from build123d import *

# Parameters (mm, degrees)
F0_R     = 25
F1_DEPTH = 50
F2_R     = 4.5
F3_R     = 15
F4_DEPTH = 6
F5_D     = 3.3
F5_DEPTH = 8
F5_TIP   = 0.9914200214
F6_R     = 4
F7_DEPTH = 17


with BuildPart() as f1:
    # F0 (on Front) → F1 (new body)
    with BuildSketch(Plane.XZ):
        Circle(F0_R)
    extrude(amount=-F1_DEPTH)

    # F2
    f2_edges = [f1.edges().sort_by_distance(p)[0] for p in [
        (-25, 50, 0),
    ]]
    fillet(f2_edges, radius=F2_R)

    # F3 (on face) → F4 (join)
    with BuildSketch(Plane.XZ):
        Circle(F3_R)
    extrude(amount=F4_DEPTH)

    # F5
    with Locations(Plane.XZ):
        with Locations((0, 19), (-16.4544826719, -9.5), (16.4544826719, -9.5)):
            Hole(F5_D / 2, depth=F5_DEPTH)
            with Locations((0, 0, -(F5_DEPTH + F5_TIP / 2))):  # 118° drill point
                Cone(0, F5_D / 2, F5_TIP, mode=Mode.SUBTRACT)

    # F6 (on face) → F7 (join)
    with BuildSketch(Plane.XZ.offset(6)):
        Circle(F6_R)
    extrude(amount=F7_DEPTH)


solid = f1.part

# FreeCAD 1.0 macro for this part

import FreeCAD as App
import Part
import Sketcher


def edges_at(feature, points):
    """Names of the edges that pass closest to the given points."""
    edges = feature.Shape.Edges
    near = lambda p: min(range(len(edges)), key=lambda i: edges[i].distToShape(Part.Vertex(*p))[0])
    return sorted({f"Edge{near(p) + 1}" for p in points})

doc = App.newDocument("Part")
params = doc.addObject("Spreadsheet::Sheet", "Params")
for row, (alias, value) in enumerate([
    ("sketch1_diameter", "50 mm"),
    ("pad1_length", "50 mm"),
    ("fillet_radius", "4.5 mm"),
    ("sketch2_diameter", "30 mm"),
    ("pad2_length", "6 mm"),
    ("sketch3_diameter", "3.3 mm"),
    ("hole_diameter", "3.3 mm"),
    ("hole_depth", "8 mm"),
    ("sketch4_diameter", "8 mm"),
    ("pad3_length", "17 mm"),
], start=1):
    params.set(f"A{row}", alias)
    params.set(f"B{row}", "=" + value)
    params.setAlias(f"B{row}", alias)

body = doc.addObject("PartDesign::Body", "Body")

sketch1 = doc.addObject("Sketcher::SketchObject", "Sketch")
body.addObject(sketch1)
sketch1.AttachmentSupport = (doc.XZ_Plane, [""])
sketch1.MapMode = "FlatFace"
sketch1.addGeometry(Part.Circle(App.Vector(0, 0, 0), App.Vector(0, 0, 1), 25), False)
sketch1.addConstraint(Sketcher.Constraint("Coincident", 0, 3, -1, 1))
sketch1.addConstraint(Sketcher.Constraint("Diameter", 0, 50.0))
sketch1.setExpression("Constraints[1]", "Params.sketch1_diameter")
pad1 = doc.addObject("PartDesign::Pad", "Pad")
body.addObject(pad1)
pad1.Profile = sketch1
pad1.setExpression("Length", "Params.pad1_length")
pad1.Reversed = True
doc.recompute()

fillet = doc.addObject("PartDesign::Fillet", "Fillet")
body.addObject(fillet)
fillet.Base = (pad1, edges_at(pad1, [(-25, 50, 0)]))
fillet.setExpression("Radius", "Params.fillet_radius")

sketch2 = doc.addObject("Sketcher::SketchObject", "Sketch001")
body.addObject(sketch2)
sketch2.AttachmentSupport = (doc.XZ_Plane, [""])
sketch2.MapMode = "FlatFace"
sketch2.addGeometry(Part.Circle(App.Vector(0, 0, 0), App.Vector(0, 0, 1), 15), False)
sketch2.addConstraint(Sketcher.Constraint("Coincident", 0, 3, -1, 1))
sketch2.addConstraint(Sketcher.Constraint("Diameter", 0, 30.0))
sketch2.setExpression("Constraints[1]", "Params.sketch2_diameter")
pad2 = doc.addObject("PartDesign::Pad", "Pad001")
body.addObject(pad2)
pad2.Profile = sketch2
pad2.setExpression("Length", "Params.pad2_length")

sketch3 = doc.addObject("Sketcher::SketchObject", "Sketch002")
body.addObject(sketch3)
sketch3.AttachmentSupport = (doc.XZ_Plane, [""])
sketch3.MapMode = "FlatFace"
sketch3.addGeometry(Part.Circle(App.Vector(0, 19, 0), App.Vector(0, 0, 1), 1.6), False)
sketch3.addGeometry(Part.Circle(App.Vector(-16.5, -9.5, 0), App.Vector(0, 0, 1), 1.6), False)
sketch3.addGeometry(Part.Circle(App.Vector(16.5, -9.5, 0), App.Vector(0, 0, 1), 1.6), False)
sketch3.addConstraint(Sketcher.Constraint("Equal", 0, 1))
sketch3.addConstraint(Sketcher.Constraint("Equal", 1, 2))
sketch3.addConstraint(Sketcher.Constraint("Symmetric", 1, 3, 2, 3, -2))
sketch3.addConstraint(Sketcher.Constraint("PointOnObject", 0, 3, -2))
sketch3.addConstraint(Sketcher.Constraint("Diameter", 0, 3.3))
sketch3.addConstraint(Sketcher.Constraint("DistanceY", -1, 1, 0, 3, 19.0))
sketch3.addConstraint(Sketcher.Constraint("DistanceY", 1, 3, -1, 1, 9.5))
sketch3.addConstraint(Sketcher.Constraint("DistanceX", 1, 3, -1, 1, 16.454483))
sketch3.setExpression("Constraints[4]", "Params.sketch3_diameter")
doc.recompute()
hole = doc.addObject("PartDesign::Hole", "Hole")
body.addObject(hole)
hole.Profile = sketch3
hole.ThreadType = "None"
hole.setExpression("Diameter", "Params.hole_diameter")
hole.DepthType = "Dimension"
hole.setExpression("Depth", "Params.hole_depth")
hole.DrillPoint = "Angled"
hole.DrillPointAngle = 118

sketch4 = doc.addObject("Sketcher::SketchObject", "Sketch003")
body.addObject(sketch4)
sketch4.AttachmentSupport = (doc.XZ_Plane, [""])
sketch4.MapMode = "FlatFace"
sketch4.AttachmentOffset = App.Placement(App.Vector(0, 0, 6), App.Rotation())
sketch4.addGeometry(Part.Circle(App.Vector(0, 0, 0), App.Vector(0, 0, 1), 4), False)
sketch4.addConstraint(Sketcher.Constraint("Coincident", 0, 3, -1, 1))
sketch4.addConstraint(Sketcher.Constraint("Diameter", 0, 8.0))
sketch4.setExpression("Constraints[1]", "Params.sketch4_diameter")
pad3 = doc.addObject("PartDesign::Pad", "Pad002")
body.addObject(pad3)
pad3.Profile = sketch4
pad3.setExpression("Length", "Params.pad3_length")

doc.recompute()
